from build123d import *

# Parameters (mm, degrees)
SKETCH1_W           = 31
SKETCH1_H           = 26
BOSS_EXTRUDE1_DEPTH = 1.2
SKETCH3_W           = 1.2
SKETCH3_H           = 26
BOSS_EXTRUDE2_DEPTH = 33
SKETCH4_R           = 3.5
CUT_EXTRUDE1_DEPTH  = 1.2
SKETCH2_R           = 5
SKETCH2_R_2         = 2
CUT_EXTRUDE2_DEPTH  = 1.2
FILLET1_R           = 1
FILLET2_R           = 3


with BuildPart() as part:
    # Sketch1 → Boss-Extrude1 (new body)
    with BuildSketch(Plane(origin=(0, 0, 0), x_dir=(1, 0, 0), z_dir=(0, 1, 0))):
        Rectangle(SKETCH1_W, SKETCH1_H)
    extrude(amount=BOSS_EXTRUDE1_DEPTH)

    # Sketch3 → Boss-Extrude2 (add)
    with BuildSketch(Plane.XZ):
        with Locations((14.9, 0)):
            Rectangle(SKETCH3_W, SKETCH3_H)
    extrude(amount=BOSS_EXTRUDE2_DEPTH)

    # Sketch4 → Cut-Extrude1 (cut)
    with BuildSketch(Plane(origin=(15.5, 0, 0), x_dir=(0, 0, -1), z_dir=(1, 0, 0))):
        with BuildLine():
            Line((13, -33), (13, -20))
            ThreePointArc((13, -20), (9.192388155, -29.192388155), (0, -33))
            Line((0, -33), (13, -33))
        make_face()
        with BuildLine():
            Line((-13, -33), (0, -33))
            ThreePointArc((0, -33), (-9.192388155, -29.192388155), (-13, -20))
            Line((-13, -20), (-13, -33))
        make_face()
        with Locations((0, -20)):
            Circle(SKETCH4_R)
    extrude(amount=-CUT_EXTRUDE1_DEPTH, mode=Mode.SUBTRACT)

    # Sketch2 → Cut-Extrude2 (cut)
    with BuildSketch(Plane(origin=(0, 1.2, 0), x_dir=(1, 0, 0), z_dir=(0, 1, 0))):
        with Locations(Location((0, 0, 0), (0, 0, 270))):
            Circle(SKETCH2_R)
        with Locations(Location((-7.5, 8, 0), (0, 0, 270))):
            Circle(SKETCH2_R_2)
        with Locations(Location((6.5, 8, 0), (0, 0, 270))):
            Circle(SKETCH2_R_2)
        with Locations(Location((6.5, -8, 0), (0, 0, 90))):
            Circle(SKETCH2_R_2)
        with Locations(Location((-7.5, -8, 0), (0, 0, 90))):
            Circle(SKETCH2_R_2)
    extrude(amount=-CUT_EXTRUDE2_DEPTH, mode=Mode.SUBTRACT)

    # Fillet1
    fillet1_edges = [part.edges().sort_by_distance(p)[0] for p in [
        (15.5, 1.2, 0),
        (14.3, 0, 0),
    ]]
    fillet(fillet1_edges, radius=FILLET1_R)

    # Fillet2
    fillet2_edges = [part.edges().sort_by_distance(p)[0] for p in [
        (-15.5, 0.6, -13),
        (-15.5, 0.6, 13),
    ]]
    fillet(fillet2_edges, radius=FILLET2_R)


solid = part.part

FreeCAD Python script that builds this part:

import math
import FreeCAD as App
import Part
import Sketcher
from FreeCAD import Vector
Q = App.Units.Quantity


def edges_at(feature, points):
    """Names of the edges that pass closest to the given points."""
    edges = feature.Shape.Edges
    near = lambda p: min(range(len(edges)), key=lambda i: edges[i].distToShape(Part.Vertex(*p))[0])
    return sorted({f"Edge{near(p) + 1}" for p in points})

doc = App.newDocument("Part")
body = doc.addObject("PartDesign::Body", "Body")

sketch1 = body.newObject("Sketcher::SketchObject", "Sketch")
sketch1.AttachmentSupport = (doc.getObject("XZ_Plane"), [""])
sketch1.MapMode = "FlatFace"
sketch1.addGeometry([
    Part.LineSegment(Vector(-16, -13, 0), Vector(-16, 13, 0)),
    Part.LineSegment(Vector(-16, 13, 0), Vector(16, 13, 0)),
    Part.LineSegment(Vector(16, 13, 0), Vector(16, -13, 0)),
    Part.LineSegment(Vector(16, -13, 0), Vector(-16, -13, 0)),
], False)
sketch1.addConstraint([
    Sketcher.Constraint("Coincident", 0, 2, 1, 1),
    Sketcher.Constraint("Coincident", 1, 2, 2, 1),
    Sketcher.Constraint("Coincident", 2, 2, 3, 1),
    Sketcher.Constraint("Coincident", 3, 2, 0, 1),
    Sketcher.Constraint("Vertical", 0),
    Sketcher.Constraint("Horizontal", 1),
    Sketcher.Constraint("Vertical", 2),
    Sketcher.Constraint("Horizontal", 3),
    Sketcher.Constraint("Symmetric", 0, 2, 2, 2, -1, 1),
    Sketcher.Constraint("DistanceX", 1, 1, 1, 2, Q("31 mm")),
    Sketcher.Constraint("DistanceY", 0, 1, 0, 2, Q("26 mm")),
])
pad1 = body.newObject("PartDesign::Pad", "Pad")
pad1.Profile = sketch1
pad1.Length = 1.2
pad1.Reversed = True

sketch2 = body.newObject("Sketcher::SketchObject", "Sketch001")
sketch2.AttachmentSupport = (doc.getObject("XZ_Plane"), [""])
sketch2.MapMode = "FlatFace"
sketch2.addGeometry([
    Part.LineSegment(Vector(14.3, 13, 0), Vector(14.3, -13, 0)),
    Part.LineSegment(Vector(14.3, -13, 0), Vector(15.5, -13, 0)),
    Part.LineSegment(Vector(15.5, -13, 0), Vector(15.5, 13, 0)),
    Part.LineSegment(Vector(15.5, 13, 0), Vector(14.3, 13, 0)),
], False)
sketch2.addConstraint([
    Sketcher.Constraint("Coincident", 0, 2, 1, 1),
    Sketcher.Constraint("Coincident", 1, 2, 2, 1),
    Sketcher.Constraint("Coincident", 2, 2, 3, 1),
    Sketcher.Constraint("Coincident", 3, 2, 0, 1),
    Sketcher.Constraint("Vertical", 0),
    Sketcher.Constraint("Horizontal", 1),
    Sketcher.Constraint("Vertical", 2),
    Sketcher.Constraint("Horizontal", 3),
    Sketcher.Constraint("DistanceY", 0, 2, 0, 1, Q("26 mm")),
    Sketcher.Constraint("DistanceX", 1, 1, 1, 2, Q("1.2 mm")),
    Sketcher.Constraint("DistanceY", 0, 2, -1, 1, Q("13 mm")),
    Sketcher.Constraint("DistanceX", -1, 1, 0, 2, Q("14.3 mm")),
])
pad2 = body.newObject("PartDesign::Pad", "Pad001")
pad2.Profile = sketch2
pad2.Length = 33

sketch3 = body.newObject("Sketcher::SketchObject", "Sketch002")
sketch3.AttachmentSupport = (doc.getObject("YZ_Plane"), [""])
sketch3.MapMode = "FlatFace"
sketch3.AttachmentOffset = App.Placement(Vector(0, 0, 15.5), App.Rotation())
sketch3.addGeometry([
    Part.LineSegment(Vector(-33, -13, 0), Vector(-20, -13, 0)),
    Part.ArcOfCircle(Part.Circle(Vector(-20, 0, 0), Vector(0, 0, 1), 13), math.radians(-180), math.radians(-90)),
    Part.LineSegment(Vector(-33, 0, 0), Vector(-33, -13, 0)),
    Part.LineSegment(Vector(-33, 13, 0), Vector(-33, 0, 0)),
    Part.ArcOfCircle(Part.Circle(Vector(-20, 0, 0), Vector(0, 0, 1), 13), math.radians(90), math.radians(180)),
    Part.LineSegment(Vector(-20, 13, 0), Vector(-33, 13, 0)),
    Part.Circle(Vector(-20, 0, 0), Vector(0, 0, 1), 3.5),
], False)
sketch3.addConstraint([
    Sketcher.Constraint("Tangent", 0, 2, 1, 2),
    Sketcher.Constraint("Tangent", 1, 1, 2, 1),
    Sketcher.Constraint("Coincident", 2, 2, 0, 1),
    Sketcher.Constraint("Tangent", 3, 2, 4, 2),
    Sketcher.Constraint("Tangent", 4, 1, 5, 1),
    Sketcher.Constraint("Coincident", 5, 2, 3, 1),
    Sketcher.Constraint("Horizontal", 0),
    Sketcher.Constraint("Vertical", 2),
    Sketcher.Constraint("Vertical", 3),
    Sketcher.Constraint("Horizontal", 5),
    Sketcher.Constraint("Coincident", 4, 3, 1, 3),
    Sketcher.Constraint("Coincident", 6, 3, 1, 3),
    Sketcher.Constraint("Equal", 1, 4),
    Sketcher.Constraint("PointOnObject", 1, 3, -1),
    Sketcher.Constraint("Diameter", 6, Q("7 mm")),
    Sketcher.Constraint("Radius", 1, Q("13 mm")),
    Sketcher.Constraint("DistanceX", 1, 3, -1, 1, Q("20 mm")),
])
pocket1 = body.newObject("PartDesign::Pocket", "Pocket")
pocket1.Profile = sketch3
pocket1.Length = 1.2

sketch4 = body.newObject("Sketcher::SketchObject", "Sketch003")
sketch4.AttachmentSupport = (doc.getObject("XZ_Plane"), [""])
sketch4.MapMode = "FlatFace"
sketch4.AttachmentOffset = App.Placement(Vector(0, 0, -1.2), App.Rotation())
sketch4.addGeometry([
    Part.Circle(Vector(0, 0, 0), Vector(0, 0, 1), 5),
    Part.Circle(Vector(-7.5, -8, 0), Vector(0, 0, 1), 2),
    Part.Circle(Vector(6.5, -8, 0), Vector(0, 0, 1), 2),
    Part.Circle(Vector(6.5, 8, 0), Vector(0, 0, 1), 2),
    Part.Circle(Vector(-7.5, 8, 0), Vector(0, 0, 1), 2),
], False)
sketch4.addConstraint([
    Sketcher.Constraint("Coincident", 0, 3, -1, 1),
    Sketcher.Constraint("Equal", 1, 2),
    Sketcher.Constraint("Equal", 2, 3),
    Sketcher.Constraint("Equal", 3, 4),
    Sketcher.Constraint("Symmetric", 2, 3, 3, 3, -1),
    Sketcher.Constraint("Symmetric", 1, 3, 4, 3, -1),
    Sketcher.Constraint("Horizontal", 1, 3, 2, 3),
    Sketcher.Constraint("Diameter", 0, Q("10 mm")),
    Sketcher.Constraint("Diameter", 1, Q("4 mm")),
    Sketcher.Constraint("DistanceY", 1, 3, -1, 1, Q("8 mm")),
    Sketcher.Constraint("DistanceX", 1, 3, 2, 3, Q("14 mm")),
    Sketcher.Constraint("DistanceX", 1, 3, -1, 1, Q("7.5 mm")),
])
pocket2 = body.newObject("PartDesign::Pocket", "Pocket001")
pocket2.Profile = sketch4
pocket2.Length = 1.2
pocket2.Reversed = True
doc.recompute()

fillet = body.newObject("PartDesign::Fillet", "Fillet")
fillet.Base = (pocket2, edges_at(pocket2, [(15.5, 1.2, 0), (14.3, 0, 0)]))
fillet.Radius = 1
doc.recompute()

fillet2 = body.newObject("PartDesign::Fillet", "Fillet001")
fillet2.Base = (fillet, edges_at(fillet, [(-15.5, 0.6, -13), (-15.5, 0.6, 13)]))
fillet2.Radius = 3

doc.recompute()
